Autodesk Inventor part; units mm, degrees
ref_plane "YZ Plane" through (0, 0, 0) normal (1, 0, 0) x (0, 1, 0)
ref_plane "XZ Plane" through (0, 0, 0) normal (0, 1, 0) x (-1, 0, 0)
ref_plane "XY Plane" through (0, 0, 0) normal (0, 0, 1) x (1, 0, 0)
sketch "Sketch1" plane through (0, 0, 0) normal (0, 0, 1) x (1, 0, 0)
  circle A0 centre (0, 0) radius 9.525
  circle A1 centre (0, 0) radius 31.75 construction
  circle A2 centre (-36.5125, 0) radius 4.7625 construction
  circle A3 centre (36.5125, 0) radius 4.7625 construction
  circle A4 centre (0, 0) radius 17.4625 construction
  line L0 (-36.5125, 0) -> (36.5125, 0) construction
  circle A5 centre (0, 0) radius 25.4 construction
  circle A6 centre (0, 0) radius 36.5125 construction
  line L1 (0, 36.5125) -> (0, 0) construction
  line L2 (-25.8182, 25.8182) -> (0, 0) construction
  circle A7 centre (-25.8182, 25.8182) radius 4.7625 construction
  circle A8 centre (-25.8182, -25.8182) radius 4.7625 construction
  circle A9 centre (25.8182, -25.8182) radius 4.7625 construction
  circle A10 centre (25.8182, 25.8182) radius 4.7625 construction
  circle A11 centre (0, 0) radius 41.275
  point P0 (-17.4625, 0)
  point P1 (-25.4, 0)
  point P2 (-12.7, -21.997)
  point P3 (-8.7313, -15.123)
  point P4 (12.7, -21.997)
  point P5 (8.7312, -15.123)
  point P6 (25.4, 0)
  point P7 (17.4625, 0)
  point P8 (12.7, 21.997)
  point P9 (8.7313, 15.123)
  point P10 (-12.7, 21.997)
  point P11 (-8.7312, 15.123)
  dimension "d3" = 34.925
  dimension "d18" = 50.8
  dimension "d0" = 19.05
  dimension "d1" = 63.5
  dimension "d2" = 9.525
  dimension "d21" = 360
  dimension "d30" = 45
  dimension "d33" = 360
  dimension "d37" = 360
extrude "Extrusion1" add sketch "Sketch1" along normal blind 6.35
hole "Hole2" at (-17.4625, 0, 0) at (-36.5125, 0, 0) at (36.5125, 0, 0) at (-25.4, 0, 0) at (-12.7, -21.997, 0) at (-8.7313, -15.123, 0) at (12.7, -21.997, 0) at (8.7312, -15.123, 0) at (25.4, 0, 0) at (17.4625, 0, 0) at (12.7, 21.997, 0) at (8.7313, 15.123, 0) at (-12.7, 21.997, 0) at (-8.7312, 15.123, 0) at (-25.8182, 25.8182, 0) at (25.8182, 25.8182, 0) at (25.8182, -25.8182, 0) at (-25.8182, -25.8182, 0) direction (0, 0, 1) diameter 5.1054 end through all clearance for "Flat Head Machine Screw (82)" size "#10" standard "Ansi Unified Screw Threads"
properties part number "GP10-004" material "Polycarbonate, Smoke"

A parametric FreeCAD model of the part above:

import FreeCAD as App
import Part
import Sketcher
Q = App.Units.Quantity

doc = App.newDocument("Part")
body = doc.addObject("PartDesign::Body", "Body")

# Sketch on XY plane
sketch1 = body.newObject("Sketcher::SketchObject", "Sketch")
sketch1.AttachmentSupport = (doc.getObject("XY_Plane"), [""])
sketch1.MapMode = "FlatFace"
sketch1.addGeometry([
    Part.Circle(App.Vector(0, 0, 0), App.Vector(0, 0, 1), 41.275),
    Part.Circle(App.Vector(0, 0, 0), App.Vector(0, 0, 1), 9.525),
], False)
sketch1.addConstraint([
    Sketcher.Constraint("Coincident", 0, 3, -1, 1),
    Sketcher.Constraint("Coincident", 1, 3, -1, 1),
    Sketcher.Constraint("Diameter", 1, Q("0.75 in")),
    Sketcher.Constraint("Diameter", 0, Q("3.25 in")),
])
pad1 = body.newObject("PartDesign::Pad", "Pad")
pad1.Profile = sketch1
pad1.Length = Q("0.25 in")

# Sketch on XY plane
sketch2 = body.newObject("Sketcher::SketchObject", "Sketch001")
sketch2.AttachmentSupport = (doc.getObject("XY_Plane"), [""])
sketch2.MapMode = "FlatFace"
sketch2.addGeometry([
    Part.Circle(App.Vector(-17.4625, 0, 0), App.Vector(0, 0, 1), 2.5527),  # 0
    Part.Circle(App.Vector(-36.5125, 0, 0), App.Vector(0, 0, 1), 2.5527),  # 1
    Part.Circle(App.Vector(36.5125, 0, 0), App.Vector(0, 0, 1), 2.5527),  # 2
    Part.Circle(App.Vector(-25.4, 0, 0), App.Vector(0, 0, 1), 2.5527),  # 3
    Part.Circle(App.Vector(-12.7, -21.997, 0), App.Vector(0, 0, 1), 2.5527),  # 4
    Part.Circle(App.Vector(-8.7313, -15.123, 0), App.Vector(0, 0, 1), 2.5527),  # 5
    Part.Circle(App.Vector(12.7, -21.997, 0), App.Vector(0, 0, 1), 2.5527),  # 6
    Part.Circle(App.Vector(8.7312, -15.123, 0), App.Vector(0, 0, 1), 2.5527),  # 7
    Part.Circle(App.Vector(25.4, 0, 0), App.Vector(0, 0, 1), 2.5527),  # 8
    Part.Circle(App.Vector(17.4625, 0, 0), App.Vector(0, 0, 1), 2.5527),  # 9
    Part.Circle(App.Vector(12.7, 21.997, 0), App.Vector(0, 0, 1), 2.5527),  # 10
    Part.Circle(App.Vector(8.7313, 15.123, 0), App.Vector(0, 0, 1), 2.5527),  # 11
    Part.Circle(App.Vector(-12.7, 21.997, 0), App.Vector(0, 0, 1), 2.5527),  # 12
    Part.Circle(App.Vector(-8.7312, 15.123, 0), App.Vector(0, 0, 1), 2.5527),  # 13
    Part.Circle(App.Vector(-25.8182, 25.8182, 0), App.Vector(0, 0, 1), 2.5527),  # 14
    Part.Circle(App.Vector(25.8182, 25.8182, 0), App.Vector(0, 0, 1), 2.5527),  # 15
    Part.Circle(App.Vector(25.8182, -25.8182, 0), App.Vector(0, 0, 1), 2.5527),  # 16
    Part.Circle(App.Vector(-25.8182, -25.8182, 0), App.Vector(0, 0, 1), 2.5527),  # 17
], False)
sketch2.addConstraint([
    Sketcher.Constraint("Equal", 0, 1),
    Sketcher.Constraint("Equal", 1, 2),
    Sketcher.Constraint("Equal", 2, 3),
    Sketcher.Constraint("Equal", 3, 4),
    Sketcher.Constraint("Equal", 4, 5),
    Sketcher.Constraint("Equal", 5, 6),
    Sketcher.Constraint("Equal", 6, 7),
    Sketcher.Constraint("Equal", 7, 8),
    Sketcher.Constraint("Equal", 8, 9),
    Sketcher.Constraint("Equal", 9, 10),
    Sketcher.Constraint("Equal", 10, 11),
    Sketcher.Constraint("Equal", 11, 12),
    Sketcher.Constraint("Equal", 12, 13),
    Sketcher.Constraint("Equal", 13, 14),
    Sketcher.Constraint("Equal", 14, 15),
    Sketcher.Constraint("Equal", 15, 16),
    Sketcher.Constraint("Equal", 16, 17),
    Sketcher.Constraint("Symmetric", 1, 3, 2, 3, -1, 1),
    Sketcher.Constraint("Symmetric", 3, 3, 8, 3, -1, 1),
    Sketcher.Constraint("Symmetric", 0, 3, 9, 3, -1, 1),
    Sketcher.Constraint("Symmetric", 4, 3, 10, 3, -1, 1),
    Sketcher.Constraint("Symmetric", 5, 3, 11, 3, -1, 1),
    Sketcher.Constraint("Symmetric", 6, 3, 12, 3, -1, 1),
    Sketcher.Constraint("Symmetric", 7, 3, 13, 3, -1, 1),
    Sketcher.Constraint("Symmetric", 14, 3, 16, 3, -1, 1),
    Sketcher.Constraint("Symmetric", 15, 3, 17, 3, -1, 1),
    Sketcher.Constraint("Symmetric", 4, 3, 6, 3, -2),
    Sketcher.Constraint("Symmetric", 5, 3, 7, 3, -2),
    Sketcher.Constraint("Symmetric", 14, 3, 15, 3, -2),
    Sketcher.Constraint("PointOnObject", 0, 3, -1),
    Sketcher.Constraint("PointOnObject", 1, 3, -1),
    Sketcher.Constraint("PointOnObject", 3, 3, -1),
    Sketcher.Constraint("Diameter", 0, Q("0.201 in")),
    Sketcher.Constraint("DistanceX", 3, 3, -1, 1, Q("1 in")),
    Sketcher.Constraint("DistanceX", 4, 3, 6, 3, Q("1 in")),
    Sketcher.Constraint("DistanceX", 1, 3, 0, 3, Q("0.75 in")),
    Sketcher.Constraint("DistanceX", 0, 3, -1, 1, Q("0.6875 in")),
    Sketcher.Constraint("DistanceX", 5, 3, -1, 1, Q("0.343752 in")),
    Sketcher.Constraint("DistanceY", 5, 3, -1, 1, Q("0.5954 in")),
    Sketcher.Constraint("DistanceY", 4, 3, -1, 1, Q("21.997 mm")),
    Sketcher.Constraint("DistanceX", 14, 3, -1, 1, Q("25.8182 mm")),
    Sketcher.Constraint("DistanceY", -1, 1, 14, 3, Q("25.8182 mm")),
])
doc.recompute()
hole = body.newObject("PartDesign::Hole", "Hole")
hole.Profile = sketch2
hole.ThreadType = "None"
hole.Diameter = Q("0.201 in")
hole.DepthType = "ThroughAll"
hole.Reversed = True

doc.recompute()
